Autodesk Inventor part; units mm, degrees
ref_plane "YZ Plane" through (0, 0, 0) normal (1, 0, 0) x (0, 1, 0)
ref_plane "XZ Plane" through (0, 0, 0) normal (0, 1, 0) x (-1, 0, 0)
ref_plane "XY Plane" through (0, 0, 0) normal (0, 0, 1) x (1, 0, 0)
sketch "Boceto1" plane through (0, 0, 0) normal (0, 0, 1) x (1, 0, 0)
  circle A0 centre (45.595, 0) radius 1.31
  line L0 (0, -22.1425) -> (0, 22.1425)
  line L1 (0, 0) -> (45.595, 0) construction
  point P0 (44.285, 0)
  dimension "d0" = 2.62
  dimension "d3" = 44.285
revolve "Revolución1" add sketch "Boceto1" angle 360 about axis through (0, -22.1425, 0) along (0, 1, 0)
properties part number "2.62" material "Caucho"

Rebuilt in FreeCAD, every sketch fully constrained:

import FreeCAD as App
import Part
import Sketcher
Q = App.Units.Quantity

doc = App.newDocument("Part")
body = doc.addObject("PartDesign::Body", "Body")

sketch1 = body.newObject("Sketcher::SketchObject", "Sketch")
sketch1.AttachmentSupport = (doc.getObject("XY_Plane"), [""])
sketch1.MapMode = "FlatFace"
sketch1.addGeometry(Part.Circle(App.Vector(45.595, 0, 0), App.Vector(0, 0, 1), 1.31), False)
sketch1.addConstraint(Sketcher.Constraint("PointOnObject", 0, 3, -1))
sketch1.addConstraint(Sketcher.Constraint("Diameter", 0, Q("2.62 mm")))
sketch1.addConstraint(Sketcher.Constraint("DistanceX", -1, 1, 0, 3, Q("45.595 mm")))
revolution = body.newObject("PartDesign::Revolution", "Revolution")
revolution.Profile = sketch1
revolution.ReferenceAxis = (sketch1, ["V_Axis"])
revolution.Angle = 360

doc.recompute()
